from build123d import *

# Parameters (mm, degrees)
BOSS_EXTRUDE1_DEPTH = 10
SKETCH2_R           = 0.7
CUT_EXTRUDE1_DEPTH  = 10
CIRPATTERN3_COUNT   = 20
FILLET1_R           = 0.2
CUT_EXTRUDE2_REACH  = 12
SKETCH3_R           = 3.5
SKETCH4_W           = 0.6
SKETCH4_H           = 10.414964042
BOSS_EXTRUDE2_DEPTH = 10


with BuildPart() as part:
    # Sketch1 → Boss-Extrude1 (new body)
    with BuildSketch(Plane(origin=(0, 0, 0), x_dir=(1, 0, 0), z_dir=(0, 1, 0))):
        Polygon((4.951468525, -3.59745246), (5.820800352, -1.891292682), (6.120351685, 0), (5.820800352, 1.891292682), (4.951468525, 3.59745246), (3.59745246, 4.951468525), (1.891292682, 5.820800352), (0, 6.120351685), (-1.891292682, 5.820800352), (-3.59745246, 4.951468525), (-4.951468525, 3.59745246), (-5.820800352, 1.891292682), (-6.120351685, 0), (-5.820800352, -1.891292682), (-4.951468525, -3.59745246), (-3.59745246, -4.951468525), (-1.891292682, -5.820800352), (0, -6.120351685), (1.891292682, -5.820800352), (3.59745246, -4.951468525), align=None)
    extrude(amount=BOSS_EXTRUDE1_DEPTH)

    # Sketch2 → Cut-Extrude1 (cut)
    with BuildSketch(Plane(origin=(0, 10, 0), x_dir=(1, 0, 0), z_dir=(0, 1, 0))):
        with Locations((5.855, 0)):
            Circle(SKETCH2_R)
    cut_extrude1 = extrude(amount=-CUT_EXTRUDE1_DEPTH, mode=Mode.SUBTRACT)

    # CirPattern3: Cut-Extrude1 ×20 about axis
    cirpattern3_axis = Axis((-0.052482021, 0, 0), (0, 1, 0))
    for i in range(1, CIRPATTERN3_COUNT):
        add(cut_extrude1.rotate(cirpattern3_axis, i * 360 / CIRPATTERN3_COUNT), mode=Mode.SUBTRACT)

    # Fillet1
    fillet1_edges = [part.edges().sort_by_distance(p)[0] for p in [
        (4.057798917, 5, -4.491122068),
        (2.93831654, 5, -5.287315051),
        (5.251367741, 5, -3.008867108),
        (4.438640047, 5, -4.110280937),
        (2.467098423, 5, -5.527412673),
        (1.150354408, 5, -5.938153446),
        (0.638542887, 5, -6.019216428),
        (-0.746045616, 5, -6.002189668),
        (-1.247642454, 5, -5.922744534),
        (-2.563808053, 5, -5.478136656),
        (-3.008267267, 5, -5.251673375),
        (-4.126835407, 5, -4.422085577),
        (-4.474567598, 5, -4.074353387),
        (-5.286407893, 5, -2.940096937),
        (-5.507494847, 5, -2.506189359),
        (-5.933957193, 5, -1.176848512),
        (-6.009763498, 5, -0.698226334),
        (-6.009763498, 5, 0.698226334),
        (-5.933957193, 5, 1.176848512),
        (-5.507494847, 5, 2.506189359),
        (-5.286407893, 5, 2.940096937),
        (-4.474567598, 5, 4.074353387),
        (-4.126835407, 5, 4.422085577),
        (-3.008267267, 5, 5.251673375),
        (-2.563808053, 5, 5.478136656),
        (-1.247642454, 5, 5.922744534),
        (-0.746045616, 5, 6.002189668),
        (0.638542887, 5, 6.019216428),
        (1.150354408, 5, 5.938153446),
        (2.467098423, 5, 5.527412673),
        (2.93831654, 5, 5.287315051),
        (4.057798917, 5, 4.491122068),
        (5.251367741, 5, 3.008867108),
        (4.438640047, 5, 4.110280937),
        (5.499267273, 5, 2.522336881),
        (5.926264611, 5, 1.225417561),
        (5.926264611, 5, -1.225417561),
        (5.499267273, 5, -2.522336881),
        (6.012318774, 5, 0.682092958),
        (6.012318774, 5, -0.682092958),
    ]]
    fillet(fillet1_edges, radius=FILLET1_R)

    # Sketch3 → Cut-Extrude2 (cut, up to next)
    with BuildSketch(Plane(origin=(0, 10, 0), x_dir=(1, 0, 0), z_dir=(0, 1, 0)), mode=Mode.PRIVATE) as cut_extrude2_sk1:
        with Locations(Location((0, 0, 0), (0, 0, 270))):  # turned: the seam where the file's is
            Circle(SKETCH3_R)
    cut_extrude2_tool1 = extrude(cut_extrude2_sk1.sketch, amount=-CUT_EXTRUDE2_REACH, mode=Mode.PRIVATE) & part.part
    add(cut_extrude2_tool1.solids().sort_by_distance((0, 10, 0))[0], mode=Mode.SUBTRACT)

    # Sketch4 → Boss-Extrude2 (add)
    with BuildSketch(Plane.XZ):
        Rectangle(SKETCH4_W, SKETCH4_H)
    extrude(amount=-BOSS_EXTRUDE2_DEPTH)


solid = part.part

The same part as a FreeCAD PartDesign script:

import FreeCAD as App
import Part
import Sketcher
from FreeCAD import Vector
Q = App.Units.Quantity


def edges_at(feature, points):
    """Names of the edges that pass closest to the given points."""
    edges = feature.Shape.Edges
    near = lambda p: min(range(len(edges)), key=lambda i: edges[i].distToShape(Part.Vertex(*p))[0])
    return sorted({f"Edge{near(p) + 1}" for p in points})


def add_polygon(sketch, points):
    """Adds a closed chain of lines whose ends are joined by coincident constraints."""
    first, n = sketch.GeometryCount, len(points)
    for a, b in zip(points, points[1:] + points[:1]):
        sketch.addGeometry(Part.LineSegment(App.Vector(*a, 0), App.Vector(*b, 0)), False)
    for i in range(n):
        sketch.addConstraint(Sketcher.Constraint("Coincident", first + i, 2, first + (i + 1) % n, 1))

doc = App.newDocument("Part")
body = doc.addObject("PartDesign::Body", "Body")

# Sketch on XZ plane
sketch1 = doc.addObject("Sketcher::SketchObject", "Sketch")
body.addObject(sketch1)
sketch1.AttachmentSupport = (doc.XZ_Plane, [""])
sketch1.MapMode = "FlatFace"
add_polygon(sketch1, [(5, 3.6), (5.8, 1.9), (6.1, 0), (5.8, -1.9), (5, -3.6), (3.6, -5), (1.9, -5.8), (0, -6.1), (-1.9, -5.8), (-3.6, -5), (-5, -3.6), (-5.8, -1.9), (-6.1, 0), (-5.8, 1.9), (-5, 3.6), (-3.6, 5), (-1.9, 5.8), (0, 6.1), (1.9, 5.8), (3.6, 5)])  # lines 0-19
sketch1.addConstraint(Sketcher.Constraint("Symmetric", 0, 2, 10, 2, -1, 1))
sketch1.addConstraint(Sketcher.Constraint("Symmetric", 1, 2, 11, 2, -1, 1))
sketch1.addConstraint(Sketcher.Constraint("Symmetric", 2, 2, 12, 2, -1, 1))
sketch1.addConstraint(Sketcher.Constraint("Symmetric", 3, 2, 13, 2, -1, 1))
sketch1.addConstraint(Sketcher.Constraint("Symmetric", 4, 2, 14, 2, -1, 1))
sketch1.addConstraint(Sketcher.Constraint("Symmetric", 5, 2, 15, 2, -1, 1))
sketch1.addConstraint(Sketcher.Constraint("Symmetric", 6, 2, 16, 2, -1, 1))
sketch1.addConstraint(Sketcher.Constraint("Symmetric", 7, 2, 17, 2, -1, 1))
sketch1.addConstraint(Sketcher.Constraint("Symmetric", 8, 2, 18, 2, -1, 1))
sketch1.addConstraint(Sketcher.Constraint("Symmetric", 9, 2, 19, 2, -1, 1))
sketch1.addConstraint(Sketcher.Constraint("Symmetric", 5, 2, 7, 2, -2))
sketch1.addConstraint(Sketcher.Constraint("Symmetric", 4, 2, 8, 2, -2))
sketch1.addConstraint(Sketcher.Constraint("Symmetric", 3, 2, 9, 2, -2))
sketch1.addConstraint(Sketcher.Constraint("Symmetric", 2, 2, 10, 2, -2))
sketch1.addConstraint(Sketcher.Constraint("PointOnObject", 1, 2, -1))
sketch1.addConstraint(Sketcher.Constraint("PointOnObject", 6, 2, -2))
sketch1.addConstraint(Sketcher.Constraint("Perpendicular", 0, 5))
sketch1.addConstraint(Sketcher.Constraint("Perpendicular", 1, 6))
sketch1.addConstraint(Sketcher.Constraint("Perpendicular", 4, 9))
sketch1.addConstraint(Sketcher.Constraint("Equal", 0, 1))
sketch1.addConstraint(Sketcher.Constraint("Equal", 3, 4))
sketch1.addConstraint(Sketcher.Constraint("Equal", 4, 5))
sketch1.addConstraint(Sketcher.Constraint("Equal", 5, 6))
sketch1.addConstraint(Sketcher.Constraint("Angle", 0, Q("-63 deg")))
sketch1.addConstraint(Sketcher.Constraint("Angle", 1, Q("-81 deg")))
sketch1.addConstraint(Sketcher.Constraint("DistanceX", -1, 1, 0, 2, Q("5.8208 mm")))
pad1 = doc.addObject("PartDesign::Pad", "Pad")
body.addObject(pad1)
pad1.Profile = sketch1
pad1.Length = 10
pad1.Reversed = True

# Sketch on XZ plane
sketch2 = doc.addObject("Sketcher::SketchObject", "Sketch001")
body.addObject(sketch2)
sketch2.AttachmentSupport = (doc.XZ_Plane, [""])
sketch2.MapMode = "FlatFace"
sketch2.AttachmentOffset = App.Placement(Vector(0, 0, -10), App.Rotation())
sketch2.addGeometry(Part.Circle(Vector(5.9, 0, 0), Vector(0, 0, 1), 0.7), False)
sketch2.addConstraint(Sketcher.Constraint("PointOnObject", 0, 3, -1))
sketch2.addConstraint(Sketcher.Constraint("Diameter", 0, Q("1.4 mm")))
sketch2.addConstraint(Sketcher.Constraint("DistanceX", -1, 1, 0, 3, Q("5.855 mm")))
pocket1 = doc.addObject("PartDesign::Pocket", "Pocket")
body.addObject(pocket1)
pocket1.Profile = sketch2
pocket1.Length = 10
pocket1.Reversed = True
doc.recompute()

datumline = doc.addObject("PartDesign::Line", "DatumLine")
body.addObject(datumline)
datumline.Placement = App.Placement(Vector(-0.052482, 0, 0), App.Rotation(Vector(0, 0, 1), Vector(0, 1, 0)))
polarpattern = doc.addObject("PartDesign::PolarPattern", "PolarPattern")
body.addObject(polarpattern)
polarpattern.Originals = [pocket1]
polarpattern.Axis = (datumline, [""])
polarpattern.Angle = 360
polarpattern.Occurrences = 20
body.Tip = polarpattern
doc.recompute()

fillet = doc.addObject("PartDesign::Fillet", "Fillet")
body.addObject(fillet)
fillet.Base = (polarpattern, edges_at(polarpattern, [
    (4.058, 5, -4.491),
    (2.938, 5, -5.287),
    (5.251, 5, -3.009),
    (4.439, 5, -4.11),
    (2.467, 5, -5.527),
    (1.15, 5, -5.938),
    (0.639, 5, -6.019),
    (-0.746, 5, -6.002),
    (-1.248, 5, -5.923),
    (-2.564, 5, -5.478),
    (-3.008, 5, -5.252),
    (-4.127, 5, -4.422),
    (-4.475, 5, -4.074),
    (-5.286, 5, -2.94),
    (-5.507, 5, -2.506),
    (-5.934, 5, -1.177),
    (-6.01, 5, -0.698),
    (-6.01, 5, 0.698),
    (-5.934, 5, 1.177),
    (-5.507, 5, 2.506),
    (-5.286, 5, 2.94),
    (-4.475, 5, 4.074),
    (-4.127, 5, 4.422),
    (-3.008, 5, 5.252),
    (-2.564, 5, 5.478),
    (-1.248, 5, 5.923),
    (-0.746, 5, 6.002),
    (0.639, 5, 6.019),
    (1.15, 5, 5.938),
    (2.467, 5, 5.527),
    (2.938, 5, 5.287),
    (4.058, 5, 4.491),
    (5.251, 5, 3.009),
    (4.439, 5, 4.11),
    (5.499, 5, 2.522),
    (5.926, 5, 1.225),
    (5.926, 5, -1.225),
    (5.499, 5, -2.522),
    (6.012, 5, 0.682),
    (6.012, 5, -0.682),
]))
fillet.Radius = 0.2

# Sketch on XZ plane
sketch3 = doc.addObject("Sketcher::SketchObject", "Sketch002")
body.addObject(sketch3)
sketch3.AttachmentSupport = (doc.XZ_Plane, [""])
sketch3.MapMode = "FlatFace"
sketch3.AttachmentOffset = App.Placement(Vector(0, 0, -10), App.Rotation())
sketch3.addGeometry(Part.Circle(Vector(0, 0, 0), Vector(0, 0, 1), 3.5), False)
sketch3.addConstraint(Sketcher.Constraint("Coincident", 0, 3, -1, 1))
sketch3.addConstraint(Sketcher.Constraint("Diameter", 0, Q("7 mm")))
pocket2 = doc.addObject("PartDesign::Pocket", "Pocket001")
body.addObject(pocket2)
pocket2.Profile = sketch3
pocket2.Type = "UpToFirst"
pocket2.Reversed = True

# Sketch on XZ plane
sketch4 = doc.addObject("Sketcher::SketchObject", "Sketch003")
body.addObject(sketch4)
sketch4.AttachmentSupport = (doc.XZ_Plane, [""])
sketch4.MapMode = "FlatFace"
add_polygon(sketch4, [(-0.3, 5.2), (-0.3, -5.2), (0.3, -5.2), (0.3, 5.2)])  # lines 0-3
sketch4.addConstraint(Sketcher.Constraint("Vertical", 0))
sketch4.addConstraint(Sketcher.Constraint("Horizontal", 1))
sketch4.addConstraint(Sketcher.Constraint("Vertical", 2))
sketch4.addConstraint(Sketcher.Constraint("Horizontal", 3))
sketch4.addConstraint(Sketcher.Constraint("Symmetric", 0, 2, 2, 2, -1, 1))
sketch4.addConstraint(Sketcher.Constraint("DistanceX", 1, 1, 1, 2, Q("0.6 mm")))
sketch4.addConstraint(Sketcher.Constraint("DistanceY", 0, 2, 0, 1, Q("10.414964 mm")))
pad2 = doc.addObject("PartDesign::Pad", "Pad001")
body.addObject(pad2)
pad2.Profile = sketch4
pad2.Length = 10
pad2.Reversed = True

doc.recompute()
